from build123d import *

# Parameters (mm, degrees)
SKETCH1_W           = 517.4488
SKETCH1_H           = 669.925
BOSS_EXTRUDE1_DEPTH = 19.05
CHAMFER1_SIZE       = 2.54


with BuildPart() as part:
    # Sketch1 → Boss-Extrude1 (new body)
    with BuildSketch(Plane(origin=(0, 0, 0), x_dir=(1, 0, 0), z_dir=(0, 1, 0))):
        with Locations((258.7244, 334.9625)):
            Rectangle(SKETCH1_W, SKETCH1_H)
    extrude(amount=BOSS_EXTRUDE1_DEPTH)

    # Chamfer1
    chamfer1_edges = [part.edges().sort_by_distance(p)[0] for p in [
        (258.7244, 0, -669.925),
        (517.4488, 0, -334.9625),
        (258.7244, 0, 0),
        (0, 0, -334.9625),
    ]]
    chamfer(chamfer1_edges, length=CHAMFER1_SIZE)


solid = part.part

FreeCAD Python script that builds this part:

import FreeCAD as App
import Part
import Sketcher
Q = App.Units.Quantity


def edges_at(feature, points):
    """Names of the edges that pass closest to the given points."""
    edges = feature.Shape.Edges
    near = lambda p: min(range(len(edges)), key=lambda i: edges[i].distToShape(Part.Vertex(*p))[0])
    return sorted({f"Edge{near(p) + 1}" for p in points})


def add_polygon(sketch, points):
    """Adds a closed chain of lines whose ends are joined by coincident constraints."""
    first, n = sketch.GeometryCount, len(points)
    for a, b in zip(points, points[1:] + points[:1]):
        sketch.addGeometry(Part.LineSegment(App.Vector(*a, 0), App.Vector(*b, 0)), False)
    for i in range(n):
        sketch.addConstraint(Sketcher.Constraint("Coincident", first + i, 2, first + (i + 1) % n, 1))

doc = App.newDocument("Part")
body = doc.addObject("PartDesign::Body", "Body")

sketch1 = body.newObject("Sketcher::SketchObject", "Sketch")
sketch1.AttachmentSupport = (doc.getObject("XZ_Plane"), [""])
sketch1.MapMode = "FlatFace"
add_polygon(sketch1, [(0, -670), (0, 0), (517, 0), (517, -670)])
sketch1.addConstraint(Sketcher.Constraint("Vertical", 0))
sketch1.addConstraint(Sketcher.Constraint("Horizontal", 1))
sketch1.addConstraint(Sketcher.Constraint("Vertical", 2))
sketch1.addConstraint(Sketcher.Constraint("Horizontal", 3))
sketch1.addConstraint(Sketcher.Constraint("Coincident", 0, 2, -1, 1))
sketch1.addConstraint(Sketcher.Constraint("DistanceX", 1, 1, 1, 2, Q("20.372 in")))
sketch1.addConstraint(Sketcher.Constraint("DistanceY", 0, 1, 0, 2, Q("26.375 in")))
pad1 = body.newObject("PartDesign::Pad", "Pad")
pad1.Profile = sketch1
pad1.Length = Q("0.75 in")
pad1.Reversed = True
doc.recompute()

chamfer = body.newObject("PartDesign::Chamfer", "Chamfer")
chamfer.Base = (pad1, edges_at(pad1, [
    (258.724, 0, -669.925),
    (517.449, 0, -334.962),
    (258.724, 0, 0),
    (0, 0, -334.962),
]))
chamfer.Size = Q("0.1 in")

doc.recompute()
